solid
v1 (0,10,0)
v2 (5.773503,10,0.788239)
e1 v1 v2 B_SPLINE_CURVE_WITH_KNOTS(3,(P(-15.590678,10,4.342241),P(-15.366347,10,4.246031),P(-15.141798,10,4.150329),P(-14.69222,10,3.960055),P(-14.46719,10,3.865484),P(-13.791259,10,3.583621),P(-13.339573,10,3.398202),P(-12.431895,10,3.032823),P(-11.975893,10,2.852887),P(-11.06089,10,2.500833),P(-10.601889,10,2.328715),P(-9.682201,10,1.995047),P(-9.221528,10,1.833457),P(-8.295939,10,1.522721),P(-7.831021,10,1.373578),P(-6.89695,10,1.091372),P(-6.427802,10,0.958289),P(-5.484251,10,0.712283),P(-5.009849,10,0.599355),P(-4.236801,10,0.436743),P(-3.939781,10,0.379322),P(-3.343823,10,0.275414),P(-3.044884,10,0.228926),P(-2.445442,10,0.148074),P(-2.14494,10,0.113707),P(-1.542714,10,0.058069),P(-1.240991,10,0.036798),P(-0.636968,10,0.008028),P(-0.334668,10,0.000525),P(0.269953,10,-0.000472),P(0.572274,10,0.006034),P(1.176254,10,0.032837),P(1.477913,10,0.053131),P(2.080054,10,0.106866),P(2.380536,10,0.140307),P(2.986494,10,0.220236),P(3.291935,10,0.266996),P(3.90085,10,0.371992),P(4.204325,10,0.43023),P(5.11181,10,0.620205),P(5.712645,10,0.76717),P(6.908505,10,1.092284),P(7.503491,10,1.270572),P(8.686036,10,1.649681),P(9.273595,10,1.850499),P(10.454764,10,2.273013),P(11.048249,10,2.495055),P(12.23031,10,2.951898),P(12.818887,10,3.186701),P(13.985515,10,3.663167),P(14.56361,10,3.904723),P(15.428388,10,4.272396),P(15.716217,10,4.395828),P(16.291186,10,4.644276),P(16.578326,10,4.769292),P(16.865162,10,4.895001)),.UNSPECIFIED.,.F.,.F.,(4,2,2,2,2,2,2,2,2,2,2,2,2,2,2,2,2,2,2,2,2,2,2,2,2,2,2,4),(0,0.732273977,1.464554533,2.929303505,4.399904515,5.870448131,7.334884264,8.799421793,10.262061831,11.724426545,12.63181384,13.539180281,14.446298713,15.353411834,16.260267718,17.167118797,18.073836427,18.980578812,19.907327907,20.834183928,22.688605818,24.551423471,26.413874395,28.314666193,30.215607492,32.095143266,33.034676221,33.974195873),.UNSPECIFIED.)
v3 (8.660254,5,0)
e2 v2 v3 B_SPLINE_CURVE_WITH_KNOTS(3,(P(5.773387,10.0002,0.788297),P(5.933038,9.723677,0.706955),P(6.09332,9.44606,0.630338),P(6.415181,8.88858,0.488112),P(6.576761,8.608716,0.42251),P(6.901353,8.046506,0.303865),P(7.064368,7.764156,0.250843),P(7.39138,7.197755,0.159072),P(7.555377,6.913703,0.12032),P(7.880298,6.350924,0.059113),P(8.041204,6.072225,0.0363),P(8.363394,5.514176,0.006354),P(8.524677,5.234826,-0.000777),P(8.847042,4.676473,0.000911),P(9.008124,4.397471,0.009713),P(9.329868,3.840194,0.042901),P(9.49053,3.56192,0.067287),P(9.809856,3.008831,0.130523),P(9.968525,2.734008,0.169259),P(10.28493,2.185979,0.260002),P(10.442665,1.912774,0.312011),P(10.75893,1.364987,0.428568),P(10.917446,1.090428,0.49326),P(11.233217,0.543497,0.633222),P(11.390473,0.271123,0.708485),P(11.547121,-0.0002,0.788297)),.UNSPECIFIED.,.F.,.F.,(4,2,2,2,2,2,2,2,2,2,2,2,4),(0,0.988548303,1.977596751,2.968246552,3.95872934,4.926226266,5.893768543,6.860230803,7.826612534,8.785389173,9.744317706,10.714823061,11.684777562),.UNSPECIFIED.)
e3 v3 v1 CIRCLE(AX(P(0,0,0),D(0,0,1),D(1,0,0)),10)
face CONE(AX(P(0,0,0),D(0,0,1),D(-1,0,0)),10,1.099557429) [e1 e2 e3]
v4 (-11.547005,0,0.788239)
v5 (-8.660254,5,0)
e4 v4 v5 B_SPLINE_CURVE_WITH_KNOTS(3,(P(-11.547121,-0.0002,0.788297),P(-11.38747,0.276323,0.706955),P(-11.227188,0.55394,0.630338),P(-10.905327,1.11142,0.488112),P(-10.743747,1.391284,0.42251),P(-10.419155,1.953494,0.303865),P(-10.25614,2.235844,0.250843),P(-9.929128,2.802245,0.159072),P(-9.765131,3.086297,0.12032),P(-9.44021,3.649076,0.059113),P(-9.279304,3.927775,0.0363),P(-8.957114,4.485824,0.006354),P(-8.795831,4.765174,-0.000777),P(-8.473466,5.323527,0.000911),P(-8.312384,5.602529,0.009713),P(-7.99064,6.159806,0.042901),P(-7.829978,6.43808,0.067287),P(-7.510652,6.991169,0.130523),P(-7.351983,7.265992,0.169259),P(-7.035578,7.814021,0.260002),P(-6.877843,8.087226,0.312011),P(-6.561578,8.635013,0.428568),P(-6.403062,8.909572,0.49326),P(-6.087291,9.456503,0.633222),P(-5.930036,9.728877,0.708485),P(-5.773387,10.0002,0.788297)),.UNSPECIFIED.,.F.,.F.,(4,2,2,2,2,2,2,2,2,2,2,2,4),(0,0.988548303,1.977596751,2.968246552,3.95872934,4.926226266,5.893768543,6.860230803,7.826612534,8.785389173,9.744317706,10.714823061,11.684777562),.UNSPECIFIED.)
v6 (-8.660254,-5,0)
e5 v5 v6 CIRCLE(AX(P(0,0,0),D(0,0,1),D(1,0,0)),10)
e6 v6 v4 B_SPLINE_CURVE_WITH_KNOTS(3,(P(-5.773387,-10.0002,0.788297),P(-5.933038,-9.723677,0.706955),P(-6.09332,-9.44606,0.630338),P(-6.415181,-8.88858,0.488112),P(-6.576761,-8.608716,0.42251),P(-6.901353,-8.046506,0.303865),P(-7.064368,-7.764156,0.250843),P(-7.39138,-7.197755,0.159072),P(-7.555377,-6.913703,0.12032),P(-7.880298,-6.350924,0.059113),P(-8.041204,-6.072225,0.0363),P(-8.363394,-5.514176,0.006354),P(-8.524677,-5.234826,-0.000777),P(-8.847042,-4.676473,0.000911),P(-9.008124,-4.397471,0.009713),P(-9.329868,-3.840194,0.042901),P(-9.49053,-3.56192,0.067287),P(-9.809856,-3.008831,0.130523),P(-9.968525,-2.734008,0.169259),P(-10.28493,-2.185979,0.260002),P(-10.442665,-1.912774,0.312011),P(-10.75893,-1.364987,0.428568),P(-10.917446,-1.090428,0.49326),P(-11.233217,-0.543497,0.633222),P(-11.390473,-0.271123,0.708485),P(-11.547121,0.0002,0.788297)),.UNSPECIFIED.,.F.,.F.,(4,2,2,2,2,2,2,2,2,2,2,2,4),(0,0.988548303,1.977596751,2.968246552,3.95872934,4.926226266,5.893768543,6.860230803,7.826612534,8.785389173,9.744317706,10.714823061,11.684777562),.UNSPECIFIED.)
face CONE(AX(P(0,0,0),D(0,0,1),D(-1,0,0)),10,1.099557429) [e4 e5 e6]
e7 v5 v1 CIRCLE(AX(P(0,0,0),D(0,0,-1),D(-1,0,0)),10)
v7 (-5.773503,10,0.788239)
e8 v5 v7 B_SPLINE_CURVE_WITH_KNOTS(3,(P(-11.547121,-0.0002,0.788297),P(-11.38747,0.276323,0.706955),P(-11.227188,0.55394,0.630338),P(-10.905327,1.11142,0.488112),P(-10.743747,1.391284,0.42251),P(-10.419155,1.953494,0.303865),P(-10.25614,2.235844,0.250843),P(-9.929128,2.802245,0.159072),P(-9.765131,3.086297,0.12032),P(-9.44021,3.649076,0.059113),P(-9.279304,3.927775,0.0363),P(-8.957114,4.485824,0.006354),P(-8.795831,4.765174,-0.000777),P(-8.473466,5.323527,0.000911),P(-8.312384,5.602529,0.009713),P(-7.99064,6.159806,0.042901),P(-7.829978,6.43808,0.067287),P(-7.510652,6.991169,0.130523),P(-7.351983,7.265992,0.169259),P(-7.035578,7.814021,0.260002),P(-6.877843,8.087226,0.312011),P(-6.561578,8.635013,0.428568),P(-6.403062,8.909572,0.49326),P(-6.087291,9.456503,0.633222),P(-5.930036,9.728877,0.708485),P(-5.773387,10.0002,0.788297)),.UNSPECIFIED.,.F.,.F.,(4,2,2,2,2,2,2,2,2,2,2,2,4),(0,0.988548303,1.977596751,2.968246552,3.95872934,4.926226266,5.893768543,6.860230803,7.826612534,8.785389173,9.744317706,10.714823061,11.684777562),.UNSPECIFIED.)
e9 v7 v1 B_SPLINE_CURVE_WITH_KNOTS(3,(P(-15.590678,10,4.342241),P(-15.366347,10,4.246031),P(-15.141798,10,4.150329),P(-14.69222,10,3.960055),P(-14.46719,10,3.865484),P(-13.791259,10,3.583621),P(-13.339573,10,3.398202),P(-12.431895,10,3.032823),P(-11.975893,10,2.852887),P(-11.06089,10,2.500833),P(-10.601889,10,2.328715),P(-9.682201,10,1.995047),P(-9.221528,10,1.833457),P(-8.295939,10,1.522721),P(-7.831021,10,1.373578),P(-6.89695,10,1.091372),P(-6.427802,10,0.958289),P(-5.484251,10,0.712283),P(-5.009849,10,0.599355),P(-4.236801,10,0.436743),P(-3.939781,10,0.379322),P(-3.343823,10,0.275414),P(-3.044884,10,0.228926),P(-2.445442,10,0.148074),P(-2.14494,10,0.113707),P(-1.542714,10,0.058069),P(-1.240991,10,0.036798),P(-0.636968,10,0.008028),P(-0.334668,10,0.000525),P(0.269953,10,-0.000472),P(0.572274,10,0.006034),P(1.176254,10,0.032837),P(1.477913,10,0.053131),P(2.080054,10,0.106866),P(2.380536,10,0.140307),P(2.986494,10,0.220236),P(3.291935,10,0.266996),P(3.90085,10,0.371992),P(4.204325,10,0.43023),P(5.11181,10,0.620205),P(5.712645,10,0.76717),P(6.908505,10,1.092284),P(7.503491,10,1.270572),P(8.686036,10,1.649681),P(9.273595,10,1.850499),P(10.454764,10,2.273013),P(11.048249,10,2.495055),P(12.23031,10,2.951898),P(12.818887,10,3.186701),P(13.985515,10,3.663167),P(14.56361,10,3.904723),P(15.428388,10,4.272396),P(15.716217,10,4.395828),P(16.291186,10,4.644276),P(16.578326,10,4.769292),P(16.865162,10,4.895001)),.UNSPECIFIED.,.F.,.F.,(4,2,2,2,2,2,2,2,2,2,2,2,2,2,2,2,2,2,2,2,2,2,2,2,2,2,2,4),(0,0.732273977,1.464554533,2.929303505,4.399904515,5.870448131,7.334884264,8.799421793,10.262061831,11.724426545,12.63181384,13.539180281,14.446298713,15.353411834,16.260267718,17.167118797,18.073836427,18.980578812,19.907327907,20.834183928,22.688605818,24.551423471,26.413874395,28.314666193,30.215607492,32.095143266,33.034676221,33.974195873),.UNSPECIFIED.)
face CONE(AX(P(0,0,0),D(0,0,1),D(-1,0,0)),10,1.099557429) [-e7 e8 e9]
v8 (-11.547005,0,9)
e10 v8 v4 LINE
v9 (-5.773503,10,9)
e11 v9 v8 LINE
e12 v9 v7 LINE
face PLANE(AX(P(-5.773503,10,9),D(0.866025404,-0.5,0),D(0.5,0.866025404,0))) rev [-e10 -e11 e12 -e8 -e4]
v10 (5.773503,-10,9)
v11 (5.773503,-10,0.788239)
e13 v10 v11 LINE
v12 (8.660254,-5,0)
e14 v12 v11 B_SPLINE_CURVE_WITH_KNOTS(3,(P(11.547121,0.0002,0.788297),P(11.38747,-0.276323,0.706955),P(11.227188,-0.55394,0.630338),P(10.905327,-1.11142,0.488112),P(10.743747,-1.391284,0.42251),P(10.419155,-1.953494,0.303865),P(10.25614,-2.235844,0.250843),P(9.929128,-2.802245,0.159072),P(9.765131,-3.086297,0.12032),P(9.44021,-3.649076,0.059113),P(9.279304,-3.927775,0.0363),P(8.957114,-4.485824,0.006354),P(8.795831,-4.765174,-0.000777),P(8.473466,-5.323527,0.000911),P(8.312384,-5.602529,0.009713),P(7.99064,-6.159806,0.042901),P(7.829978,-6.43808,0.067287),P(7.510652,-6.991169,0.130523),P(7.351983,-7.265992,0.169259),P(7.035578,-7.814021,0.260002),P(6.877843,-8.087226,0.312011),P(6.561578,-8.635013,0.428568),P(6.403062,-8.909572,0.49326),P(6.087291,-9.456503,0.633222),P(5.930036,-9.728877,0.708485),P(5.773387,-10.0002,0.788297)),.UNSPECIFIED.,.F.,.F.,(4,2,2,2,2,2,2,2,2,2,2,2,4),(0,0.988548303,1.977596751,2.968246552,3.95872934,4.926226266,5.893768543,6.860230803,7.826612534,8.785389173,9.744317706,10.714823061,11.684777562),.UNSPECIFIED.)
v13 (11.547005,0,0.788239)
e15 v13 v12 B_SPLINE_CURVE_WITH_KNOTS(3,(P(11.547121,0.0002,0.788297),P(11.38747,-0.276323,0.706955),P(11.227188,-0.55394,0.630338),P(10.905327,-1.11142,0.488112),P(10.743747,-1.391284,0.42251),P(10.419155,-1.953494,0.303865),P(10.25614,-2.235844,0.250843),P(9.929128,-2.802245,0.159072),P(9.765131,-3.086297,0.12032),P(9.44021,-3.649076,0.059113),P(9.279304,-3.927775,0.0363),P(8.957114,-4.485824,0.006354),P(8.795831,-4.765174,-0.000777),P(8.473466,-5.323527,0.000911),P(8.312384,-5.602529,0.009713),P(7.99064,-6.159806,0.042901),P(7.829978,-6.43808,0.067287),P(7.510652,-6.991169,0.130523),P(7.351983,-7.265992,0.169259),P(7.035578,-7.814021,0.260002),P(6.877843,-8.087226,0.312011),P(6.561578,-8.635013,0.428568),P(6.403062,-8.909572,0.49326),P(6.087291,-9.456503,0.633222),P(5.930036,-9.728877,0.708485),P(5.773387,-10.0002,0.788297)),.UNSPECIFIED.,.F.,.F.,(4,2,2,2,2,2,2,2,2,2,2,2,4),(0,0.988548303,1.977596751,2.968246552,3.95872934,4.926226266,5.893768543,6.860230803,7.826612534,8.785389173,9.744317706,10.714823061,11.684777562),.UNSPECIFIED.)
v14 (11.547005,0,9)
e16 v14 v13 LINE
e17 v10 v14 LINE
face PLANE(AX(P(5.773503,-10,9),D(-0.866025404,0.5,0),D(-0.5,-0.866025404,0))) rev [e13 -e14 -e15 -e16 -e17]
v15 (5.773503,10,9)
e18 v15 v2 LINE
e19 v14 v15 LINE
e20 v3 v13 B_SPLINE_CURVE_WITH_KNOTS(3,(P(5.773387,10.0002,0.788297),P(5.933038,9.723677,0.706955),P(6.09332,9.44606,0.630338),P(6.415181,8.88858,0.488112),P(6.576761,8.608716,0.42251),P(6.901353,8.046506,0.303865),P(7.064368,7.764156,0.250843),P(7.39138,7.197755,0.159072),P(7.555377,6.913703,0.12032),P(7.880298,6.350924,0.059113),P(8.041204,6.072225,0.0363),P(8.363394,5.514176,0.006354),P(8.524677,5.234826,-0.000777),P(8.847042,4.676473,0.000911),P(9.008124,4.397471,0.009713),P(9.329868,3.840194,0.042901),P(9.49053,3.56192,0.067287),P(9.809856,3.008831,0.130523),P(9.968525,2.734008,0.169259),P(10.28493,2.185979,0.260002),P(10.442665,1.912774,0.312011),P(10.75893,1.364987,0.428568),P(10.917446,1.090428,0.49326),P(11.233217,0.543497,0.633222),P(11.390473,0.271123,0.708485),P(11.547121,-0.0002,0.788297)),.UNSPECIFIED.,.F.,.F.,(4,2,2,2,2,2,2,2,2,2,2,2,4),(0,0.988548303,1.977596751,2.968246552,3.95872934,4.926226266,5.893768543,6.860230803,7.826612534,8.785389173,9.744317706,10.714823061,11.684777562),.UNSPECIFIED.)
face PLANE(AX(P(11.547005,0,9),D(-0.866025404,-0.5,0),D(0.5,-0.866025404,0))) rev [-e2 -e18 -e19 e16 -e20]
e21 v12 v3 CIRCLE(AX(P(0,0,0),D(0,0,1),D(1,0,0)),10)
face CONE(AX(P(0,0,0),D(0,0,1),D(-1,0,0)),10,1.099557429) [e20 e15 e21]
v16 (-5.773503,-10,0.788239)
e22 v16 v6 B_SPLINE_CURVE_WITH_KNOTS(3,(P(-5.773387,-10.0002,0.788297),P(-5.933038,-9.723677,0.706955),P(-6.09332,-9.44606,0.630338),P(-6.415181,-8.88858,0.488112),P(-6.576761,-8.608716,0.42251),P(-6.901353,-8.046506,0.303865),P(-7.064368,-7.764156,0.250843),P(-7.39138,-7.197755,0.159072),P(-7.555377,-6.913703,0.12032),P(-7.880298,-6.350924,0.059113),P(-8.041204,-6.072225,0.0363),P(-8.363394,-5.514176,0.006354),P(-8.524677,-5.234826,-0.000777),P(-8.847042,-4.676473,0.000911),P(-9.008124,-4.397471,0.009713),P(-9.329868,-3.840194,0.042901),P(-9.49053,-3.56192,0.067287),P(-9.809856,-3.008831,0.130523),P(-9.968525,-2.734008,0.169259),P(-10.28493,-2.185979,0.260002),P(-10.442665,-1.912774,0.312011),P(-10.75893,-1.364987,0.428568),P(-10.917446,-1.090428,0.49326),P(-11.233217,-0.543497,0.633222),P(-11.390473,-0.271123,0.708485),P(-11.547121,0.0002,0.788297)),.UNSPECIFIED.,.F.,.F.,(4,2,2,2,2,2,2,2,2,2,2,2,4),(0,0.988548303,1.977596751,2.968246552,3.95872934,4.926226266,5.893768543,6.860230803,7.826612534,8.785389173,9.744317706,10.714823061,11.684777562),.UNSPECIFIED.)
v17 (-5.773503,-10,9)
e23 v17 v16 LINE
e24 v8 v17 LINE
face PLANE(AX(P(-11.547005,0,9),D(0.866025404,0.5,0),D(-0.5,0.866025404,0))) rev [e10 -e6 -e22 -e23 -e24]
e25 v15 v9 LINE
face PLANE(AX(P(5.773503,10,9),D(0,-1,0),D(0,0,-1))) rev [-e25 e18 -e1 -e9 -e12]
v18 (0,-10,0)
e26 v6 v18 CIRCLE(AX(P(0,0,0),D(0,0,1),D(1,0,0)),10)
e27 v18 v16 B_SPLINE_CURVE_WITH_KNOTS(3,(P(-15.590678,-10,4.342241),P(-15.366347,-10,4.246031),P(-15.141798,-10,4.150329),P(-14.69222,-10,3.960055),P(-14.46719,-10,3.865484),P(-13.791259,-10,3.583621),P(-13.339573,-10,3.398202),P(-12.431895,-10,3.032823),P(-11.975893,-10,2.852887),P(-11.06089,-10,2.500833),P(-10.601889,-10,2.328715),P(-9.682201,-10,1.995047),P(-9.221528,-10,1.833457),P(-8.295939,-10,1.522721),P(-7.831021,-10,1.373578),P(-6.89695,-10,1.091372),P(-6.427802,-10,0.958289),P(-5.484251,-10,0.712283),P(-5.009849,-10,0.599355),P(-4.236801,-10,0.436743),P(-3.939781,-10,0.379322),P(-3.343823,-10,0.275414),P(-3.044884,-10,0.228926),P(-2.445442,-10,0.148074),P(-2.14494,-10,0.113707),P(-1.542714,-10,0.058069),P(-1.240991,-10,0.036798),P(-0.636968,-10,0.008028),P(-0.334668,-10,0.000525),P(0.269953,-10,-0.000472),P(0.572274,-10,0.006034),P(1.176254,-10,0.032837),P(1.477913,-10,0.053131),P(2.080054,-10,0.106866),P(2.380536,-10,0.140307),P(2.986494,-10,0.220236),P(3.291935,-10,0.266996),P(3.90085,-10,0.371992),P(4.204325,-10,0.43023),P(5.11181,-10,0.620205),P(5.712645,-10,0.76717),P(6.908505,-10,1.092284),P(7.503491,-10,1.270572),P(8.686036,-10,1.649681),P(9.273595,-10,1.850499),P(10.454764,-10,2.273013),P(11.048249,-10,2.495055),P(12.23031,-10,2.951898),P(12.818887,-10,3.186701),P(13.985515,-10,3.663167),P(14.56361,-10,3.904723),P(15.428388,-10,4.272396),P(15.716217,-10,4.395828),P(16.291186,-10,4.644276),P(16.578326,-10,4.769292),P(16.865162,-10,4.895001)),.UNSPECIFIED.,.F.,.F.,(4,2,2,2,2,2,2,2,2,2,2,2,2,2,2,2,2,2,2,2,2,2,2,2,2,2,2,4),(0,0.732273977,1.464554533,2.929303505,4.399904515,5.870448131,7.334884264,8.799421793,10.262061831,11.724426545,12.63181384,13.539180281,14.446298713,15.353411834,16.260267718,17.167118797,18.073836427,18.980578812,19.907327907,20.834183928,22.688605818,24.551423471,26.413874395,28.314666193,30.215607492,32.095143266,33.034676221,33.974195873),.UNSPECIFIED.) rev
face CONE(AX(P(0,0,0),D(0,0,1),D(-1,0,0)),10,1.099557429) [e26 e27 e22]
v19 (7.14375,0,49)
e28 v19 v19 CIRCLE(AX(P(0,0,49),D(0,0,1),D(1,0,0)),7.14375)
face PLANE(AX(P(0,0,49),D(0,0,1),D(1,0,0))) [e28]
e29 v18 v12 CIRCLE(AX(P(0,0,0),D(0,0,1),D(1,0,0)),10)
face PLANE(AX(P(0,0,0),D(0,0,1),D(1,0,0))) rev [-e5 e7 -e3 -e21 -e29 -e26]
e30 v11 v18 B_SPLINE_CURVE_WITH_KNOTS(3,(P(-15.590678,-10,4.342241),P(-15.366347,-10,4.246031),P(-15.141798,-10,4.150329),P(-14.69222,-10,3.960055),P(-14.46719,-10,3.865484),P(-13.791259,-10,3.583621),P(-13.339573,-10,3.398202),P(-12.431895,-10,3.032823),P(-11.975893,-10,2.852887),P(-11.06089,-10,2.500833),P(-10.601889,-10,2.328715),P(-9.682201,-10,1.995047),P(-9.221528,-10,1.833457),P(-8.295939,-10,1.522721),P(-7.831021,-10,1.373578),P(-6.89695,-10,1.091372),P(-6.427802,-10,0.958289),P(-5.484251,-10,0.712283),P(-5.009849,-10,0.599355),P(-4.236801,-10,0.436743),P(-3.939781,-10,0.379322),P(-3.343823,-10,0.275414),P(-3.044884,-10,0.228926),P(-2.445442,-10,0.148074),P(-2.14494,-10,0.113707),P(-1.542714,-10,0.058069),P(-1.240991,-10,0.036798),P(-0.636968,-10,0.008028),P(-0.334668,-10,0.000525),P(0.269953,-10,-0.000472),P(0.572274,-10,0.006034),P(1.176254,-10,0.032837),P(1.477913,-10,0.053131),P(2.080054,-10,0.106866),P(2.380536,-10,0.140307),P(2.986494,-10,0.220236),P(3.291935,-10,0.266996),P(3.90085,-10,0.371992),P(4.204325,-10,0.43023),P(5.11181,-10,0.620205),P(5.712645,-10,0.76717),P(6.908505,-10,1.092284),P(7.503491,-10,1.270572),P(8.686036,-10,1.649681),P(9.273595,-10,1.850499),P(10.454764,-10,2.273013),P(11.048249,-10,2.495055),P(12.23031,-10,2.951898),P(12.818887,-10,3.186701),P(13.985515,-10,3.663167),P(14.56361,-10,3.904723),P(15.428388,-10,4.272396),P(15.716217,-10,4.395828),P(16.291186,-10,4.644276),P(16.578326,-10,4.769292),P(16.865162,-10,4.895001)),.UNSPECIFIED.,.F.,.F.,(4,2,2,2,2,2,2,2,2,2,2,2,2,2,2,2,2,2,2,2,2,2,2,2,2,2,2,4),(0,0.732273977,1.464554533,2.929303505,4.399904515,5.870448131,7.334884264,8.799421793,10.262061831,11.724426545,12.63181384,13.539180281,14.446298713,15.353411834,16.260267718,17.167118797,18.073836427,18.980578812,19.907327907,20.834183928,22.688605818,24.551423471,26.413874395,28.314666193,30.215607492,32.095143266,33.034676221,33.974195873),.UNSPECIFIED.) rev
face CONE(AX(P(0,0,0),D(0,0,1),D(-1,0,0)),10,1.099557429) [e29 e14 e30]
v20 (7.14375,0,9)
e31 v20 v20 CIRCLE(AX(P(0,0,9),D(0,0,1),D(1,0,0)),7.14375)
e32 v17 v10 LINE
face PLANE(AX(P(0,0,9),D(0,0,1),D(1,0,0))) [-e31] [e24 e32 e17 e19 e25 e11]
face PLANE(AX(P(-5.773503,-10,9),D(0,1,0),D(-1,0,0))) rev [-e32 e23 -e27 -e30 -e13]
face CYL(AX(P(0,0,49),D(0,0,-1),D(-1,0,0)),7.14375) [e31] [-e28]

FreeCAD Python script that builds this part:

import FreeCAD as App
import Part
import Sketcher

V = App.Vector
Q = App.Units.Quantity


def faces_at(feature, points):
    """Names of the faces that lie closest to the given points."""
    faces = feature.Shape.Faces
    near = lambda p: min(range(len(faces)), key=lambda i: faces[i].distToShape(Part.Vertex(*p))[0])
    return sorted({f"Face{near(p) + 1}" for p in points})

doc = App.newDocument("Part")
body = doc.addObject("PartDesign::Body", "Body")

# Sketch on XY plane
sketch1 = doc.addObject("Sketcher::SketchObject", "Sketch")
body.addObject(sketch1)
sketch1.AttachmentSupport = (doc.XY_Plane, [""])
sketch1.MapMode = "FlatFace"
sketch1.addGeometry(Part.LineSegment(V(12, 0, 0), V(6, 10, 0)), False)
sketch1.addGeometry(Part.LineSegment(V(6, 10, 0), V(-6, 10, 0)), False)
sketch1.addGeometry(Part.LineSegment(V(-6, 10, 0), V(-12, 0, 0)), False)
sketch1.addGeometry(Part.LineSegment(V(-12, 0, 0), V(-6, -10, 0)), False)
sketch1.addGeometry(Part.LineSegment(V(-6, -10, 0), V(6, -10, 0)), False)
sketch1.addGeometry(Part.LineSegment(V(6, -10, 0), V(12, 0, 0)), False)
sketch1.addConstraint(Sketcher.Constraint("Coincident", 0, 2, 1, 1))
sketch1.addConstraint(Sketcher.Constraint("Coincident", 1, 2, 2, 1))
sketch1.addConstraint(Sketcher.Constraint("Coincident", 2, 2, 3, 1))
sketch1.addConstraint(Sketcher.Constraint("Coincident", 3, 2, 4, 1))
sketch1.addConstraint(Sketcher.Constraint("Coincident", 4, 2, 5, 1))
sketch1.addConstraint(Sketcher.Constraint("Coincident", 5, 2, 0, 1))
sketch1.addConstraint(Sketcher.Constraint("Horizontal", 1))
sketch1.addConstraint(Sketcher.Constraint("Horizontal", 4))
sketch1.addConstraint(Sketcher.Constraint("Symmetric", 0, 2, 3, 2, -1, 1))
sketch1.addConstraint(Sketcher.Constraint("Symmetric", 2, 2, 5, 2, -1, 1))
sketch1.addConstraint(Sketcher.Constraint("PointOnObject", 2, 2, -1))
sketch1.addConstraint(Sketcher.Constraint("Parallel", 2, 5))
sketch1.addConstraint(Sketcher.Constraint("Vertical", 1, 2, 3, 2))
sketch1.addConstraint(Sketcher.Constraint("Angle", 0, Q("120 deg")))
sketch1.addConstraint(Sketcher.Constraint("DistanceY", -1, 1, 0, 2, 10.0))
sketch1.addConstraint(Sketcher.Constraint("DistanceX", 1, 2, 1, 1, 11.547005))
pad1 = doc.addObject("PartDesign::Pad", "Pad")
body.addObject(pad1)
pad1.Profile = sketch1
pad1.Length = 9

# Sketch on XY plane
sketch2 = doc.addObject("Sketcher::SketchObject", "Sketch001")
body.addObject(sketch2)
sketch2.AttachmentSupport = (doc.XY_Plane, [""])
sketch2.MapMode = "FlatFace"
sketch2.AttachmentOffset = App.Placement(V(0, 0, 9), App.Rotation())
sketch2.addGeometry(Part.Circle(V(0, 0, 0), V(0, 0, 1), 7), False)
sketch2.addConstraint(Sketcher.Constraint("Coincident", 0, 3, -1, 1))
sketch2.addConstraint(Sketcher.Constraint("Diameter", 0, 14.2875))
pad2 = doc.addObject("PartDesign::Pad", "Pad001")
body.addObject(pad2)
pad2.Profile = sketch2
pad2.Length = 40
body2 = doc.addObject("PartDesign::Body", "Body001")

# Sketch on XY plane
sketch3 = doc.addObject("Sketcher::SketchObject", "Sketch002")
body2.addObject(sketch3)
sketch3.AttachmentSupport = (doc.getObject("XY_Plane001"), [""])
sketch3.MapMode = "FlatFace"
sketch3.addGeometry(Part.Circle(V(0, 0, 0), V(0, 0, 1), 26), False)
sketch3.addGeometry(Part.Circle(V(0, 0, 0), V(0, 0, 1), 10), False)
sketch3.addConstraint(Sketcher.Constraint("Coincident", 0, 3, -1, 1))
sketch3.addConstraint(Sketcher.Constraint("Coincident", 1, 3, -1, 1))
sketch3.addConstraint(Sketcher.Constraint("Diameter", 1, 20.0))
sketch3.addConstraint(Sketcher.Constraint("Diameter", 0, 51.508917))
pad3 = doc.addObject("PartDesign::Pad", "Pad002")
body2.addObject(pad3)
pad3.Profile = sketch3
pad3.Length = 3
doc.recompute()

draft = doc.addObject("PartDesign::Draft", "Draft")
body2.addObject(draft)
draft.Base = (pad3, faces_at(pad3, [(25.754, 0, 1.5), (10, 0, 1.5)]))
draft.NeutralPlane = (doc.getObject("XY_Plane001"), [""])
draft.Angle = 63
draft.Reversed = False
doc.recompute()

boolean = doc.addObject("PartDesign::Boolean", "Boolean")
body.addObject(boolean)
boolean.Type = "Cut"
boolean.addObjects([body2])

doc.recompute()
